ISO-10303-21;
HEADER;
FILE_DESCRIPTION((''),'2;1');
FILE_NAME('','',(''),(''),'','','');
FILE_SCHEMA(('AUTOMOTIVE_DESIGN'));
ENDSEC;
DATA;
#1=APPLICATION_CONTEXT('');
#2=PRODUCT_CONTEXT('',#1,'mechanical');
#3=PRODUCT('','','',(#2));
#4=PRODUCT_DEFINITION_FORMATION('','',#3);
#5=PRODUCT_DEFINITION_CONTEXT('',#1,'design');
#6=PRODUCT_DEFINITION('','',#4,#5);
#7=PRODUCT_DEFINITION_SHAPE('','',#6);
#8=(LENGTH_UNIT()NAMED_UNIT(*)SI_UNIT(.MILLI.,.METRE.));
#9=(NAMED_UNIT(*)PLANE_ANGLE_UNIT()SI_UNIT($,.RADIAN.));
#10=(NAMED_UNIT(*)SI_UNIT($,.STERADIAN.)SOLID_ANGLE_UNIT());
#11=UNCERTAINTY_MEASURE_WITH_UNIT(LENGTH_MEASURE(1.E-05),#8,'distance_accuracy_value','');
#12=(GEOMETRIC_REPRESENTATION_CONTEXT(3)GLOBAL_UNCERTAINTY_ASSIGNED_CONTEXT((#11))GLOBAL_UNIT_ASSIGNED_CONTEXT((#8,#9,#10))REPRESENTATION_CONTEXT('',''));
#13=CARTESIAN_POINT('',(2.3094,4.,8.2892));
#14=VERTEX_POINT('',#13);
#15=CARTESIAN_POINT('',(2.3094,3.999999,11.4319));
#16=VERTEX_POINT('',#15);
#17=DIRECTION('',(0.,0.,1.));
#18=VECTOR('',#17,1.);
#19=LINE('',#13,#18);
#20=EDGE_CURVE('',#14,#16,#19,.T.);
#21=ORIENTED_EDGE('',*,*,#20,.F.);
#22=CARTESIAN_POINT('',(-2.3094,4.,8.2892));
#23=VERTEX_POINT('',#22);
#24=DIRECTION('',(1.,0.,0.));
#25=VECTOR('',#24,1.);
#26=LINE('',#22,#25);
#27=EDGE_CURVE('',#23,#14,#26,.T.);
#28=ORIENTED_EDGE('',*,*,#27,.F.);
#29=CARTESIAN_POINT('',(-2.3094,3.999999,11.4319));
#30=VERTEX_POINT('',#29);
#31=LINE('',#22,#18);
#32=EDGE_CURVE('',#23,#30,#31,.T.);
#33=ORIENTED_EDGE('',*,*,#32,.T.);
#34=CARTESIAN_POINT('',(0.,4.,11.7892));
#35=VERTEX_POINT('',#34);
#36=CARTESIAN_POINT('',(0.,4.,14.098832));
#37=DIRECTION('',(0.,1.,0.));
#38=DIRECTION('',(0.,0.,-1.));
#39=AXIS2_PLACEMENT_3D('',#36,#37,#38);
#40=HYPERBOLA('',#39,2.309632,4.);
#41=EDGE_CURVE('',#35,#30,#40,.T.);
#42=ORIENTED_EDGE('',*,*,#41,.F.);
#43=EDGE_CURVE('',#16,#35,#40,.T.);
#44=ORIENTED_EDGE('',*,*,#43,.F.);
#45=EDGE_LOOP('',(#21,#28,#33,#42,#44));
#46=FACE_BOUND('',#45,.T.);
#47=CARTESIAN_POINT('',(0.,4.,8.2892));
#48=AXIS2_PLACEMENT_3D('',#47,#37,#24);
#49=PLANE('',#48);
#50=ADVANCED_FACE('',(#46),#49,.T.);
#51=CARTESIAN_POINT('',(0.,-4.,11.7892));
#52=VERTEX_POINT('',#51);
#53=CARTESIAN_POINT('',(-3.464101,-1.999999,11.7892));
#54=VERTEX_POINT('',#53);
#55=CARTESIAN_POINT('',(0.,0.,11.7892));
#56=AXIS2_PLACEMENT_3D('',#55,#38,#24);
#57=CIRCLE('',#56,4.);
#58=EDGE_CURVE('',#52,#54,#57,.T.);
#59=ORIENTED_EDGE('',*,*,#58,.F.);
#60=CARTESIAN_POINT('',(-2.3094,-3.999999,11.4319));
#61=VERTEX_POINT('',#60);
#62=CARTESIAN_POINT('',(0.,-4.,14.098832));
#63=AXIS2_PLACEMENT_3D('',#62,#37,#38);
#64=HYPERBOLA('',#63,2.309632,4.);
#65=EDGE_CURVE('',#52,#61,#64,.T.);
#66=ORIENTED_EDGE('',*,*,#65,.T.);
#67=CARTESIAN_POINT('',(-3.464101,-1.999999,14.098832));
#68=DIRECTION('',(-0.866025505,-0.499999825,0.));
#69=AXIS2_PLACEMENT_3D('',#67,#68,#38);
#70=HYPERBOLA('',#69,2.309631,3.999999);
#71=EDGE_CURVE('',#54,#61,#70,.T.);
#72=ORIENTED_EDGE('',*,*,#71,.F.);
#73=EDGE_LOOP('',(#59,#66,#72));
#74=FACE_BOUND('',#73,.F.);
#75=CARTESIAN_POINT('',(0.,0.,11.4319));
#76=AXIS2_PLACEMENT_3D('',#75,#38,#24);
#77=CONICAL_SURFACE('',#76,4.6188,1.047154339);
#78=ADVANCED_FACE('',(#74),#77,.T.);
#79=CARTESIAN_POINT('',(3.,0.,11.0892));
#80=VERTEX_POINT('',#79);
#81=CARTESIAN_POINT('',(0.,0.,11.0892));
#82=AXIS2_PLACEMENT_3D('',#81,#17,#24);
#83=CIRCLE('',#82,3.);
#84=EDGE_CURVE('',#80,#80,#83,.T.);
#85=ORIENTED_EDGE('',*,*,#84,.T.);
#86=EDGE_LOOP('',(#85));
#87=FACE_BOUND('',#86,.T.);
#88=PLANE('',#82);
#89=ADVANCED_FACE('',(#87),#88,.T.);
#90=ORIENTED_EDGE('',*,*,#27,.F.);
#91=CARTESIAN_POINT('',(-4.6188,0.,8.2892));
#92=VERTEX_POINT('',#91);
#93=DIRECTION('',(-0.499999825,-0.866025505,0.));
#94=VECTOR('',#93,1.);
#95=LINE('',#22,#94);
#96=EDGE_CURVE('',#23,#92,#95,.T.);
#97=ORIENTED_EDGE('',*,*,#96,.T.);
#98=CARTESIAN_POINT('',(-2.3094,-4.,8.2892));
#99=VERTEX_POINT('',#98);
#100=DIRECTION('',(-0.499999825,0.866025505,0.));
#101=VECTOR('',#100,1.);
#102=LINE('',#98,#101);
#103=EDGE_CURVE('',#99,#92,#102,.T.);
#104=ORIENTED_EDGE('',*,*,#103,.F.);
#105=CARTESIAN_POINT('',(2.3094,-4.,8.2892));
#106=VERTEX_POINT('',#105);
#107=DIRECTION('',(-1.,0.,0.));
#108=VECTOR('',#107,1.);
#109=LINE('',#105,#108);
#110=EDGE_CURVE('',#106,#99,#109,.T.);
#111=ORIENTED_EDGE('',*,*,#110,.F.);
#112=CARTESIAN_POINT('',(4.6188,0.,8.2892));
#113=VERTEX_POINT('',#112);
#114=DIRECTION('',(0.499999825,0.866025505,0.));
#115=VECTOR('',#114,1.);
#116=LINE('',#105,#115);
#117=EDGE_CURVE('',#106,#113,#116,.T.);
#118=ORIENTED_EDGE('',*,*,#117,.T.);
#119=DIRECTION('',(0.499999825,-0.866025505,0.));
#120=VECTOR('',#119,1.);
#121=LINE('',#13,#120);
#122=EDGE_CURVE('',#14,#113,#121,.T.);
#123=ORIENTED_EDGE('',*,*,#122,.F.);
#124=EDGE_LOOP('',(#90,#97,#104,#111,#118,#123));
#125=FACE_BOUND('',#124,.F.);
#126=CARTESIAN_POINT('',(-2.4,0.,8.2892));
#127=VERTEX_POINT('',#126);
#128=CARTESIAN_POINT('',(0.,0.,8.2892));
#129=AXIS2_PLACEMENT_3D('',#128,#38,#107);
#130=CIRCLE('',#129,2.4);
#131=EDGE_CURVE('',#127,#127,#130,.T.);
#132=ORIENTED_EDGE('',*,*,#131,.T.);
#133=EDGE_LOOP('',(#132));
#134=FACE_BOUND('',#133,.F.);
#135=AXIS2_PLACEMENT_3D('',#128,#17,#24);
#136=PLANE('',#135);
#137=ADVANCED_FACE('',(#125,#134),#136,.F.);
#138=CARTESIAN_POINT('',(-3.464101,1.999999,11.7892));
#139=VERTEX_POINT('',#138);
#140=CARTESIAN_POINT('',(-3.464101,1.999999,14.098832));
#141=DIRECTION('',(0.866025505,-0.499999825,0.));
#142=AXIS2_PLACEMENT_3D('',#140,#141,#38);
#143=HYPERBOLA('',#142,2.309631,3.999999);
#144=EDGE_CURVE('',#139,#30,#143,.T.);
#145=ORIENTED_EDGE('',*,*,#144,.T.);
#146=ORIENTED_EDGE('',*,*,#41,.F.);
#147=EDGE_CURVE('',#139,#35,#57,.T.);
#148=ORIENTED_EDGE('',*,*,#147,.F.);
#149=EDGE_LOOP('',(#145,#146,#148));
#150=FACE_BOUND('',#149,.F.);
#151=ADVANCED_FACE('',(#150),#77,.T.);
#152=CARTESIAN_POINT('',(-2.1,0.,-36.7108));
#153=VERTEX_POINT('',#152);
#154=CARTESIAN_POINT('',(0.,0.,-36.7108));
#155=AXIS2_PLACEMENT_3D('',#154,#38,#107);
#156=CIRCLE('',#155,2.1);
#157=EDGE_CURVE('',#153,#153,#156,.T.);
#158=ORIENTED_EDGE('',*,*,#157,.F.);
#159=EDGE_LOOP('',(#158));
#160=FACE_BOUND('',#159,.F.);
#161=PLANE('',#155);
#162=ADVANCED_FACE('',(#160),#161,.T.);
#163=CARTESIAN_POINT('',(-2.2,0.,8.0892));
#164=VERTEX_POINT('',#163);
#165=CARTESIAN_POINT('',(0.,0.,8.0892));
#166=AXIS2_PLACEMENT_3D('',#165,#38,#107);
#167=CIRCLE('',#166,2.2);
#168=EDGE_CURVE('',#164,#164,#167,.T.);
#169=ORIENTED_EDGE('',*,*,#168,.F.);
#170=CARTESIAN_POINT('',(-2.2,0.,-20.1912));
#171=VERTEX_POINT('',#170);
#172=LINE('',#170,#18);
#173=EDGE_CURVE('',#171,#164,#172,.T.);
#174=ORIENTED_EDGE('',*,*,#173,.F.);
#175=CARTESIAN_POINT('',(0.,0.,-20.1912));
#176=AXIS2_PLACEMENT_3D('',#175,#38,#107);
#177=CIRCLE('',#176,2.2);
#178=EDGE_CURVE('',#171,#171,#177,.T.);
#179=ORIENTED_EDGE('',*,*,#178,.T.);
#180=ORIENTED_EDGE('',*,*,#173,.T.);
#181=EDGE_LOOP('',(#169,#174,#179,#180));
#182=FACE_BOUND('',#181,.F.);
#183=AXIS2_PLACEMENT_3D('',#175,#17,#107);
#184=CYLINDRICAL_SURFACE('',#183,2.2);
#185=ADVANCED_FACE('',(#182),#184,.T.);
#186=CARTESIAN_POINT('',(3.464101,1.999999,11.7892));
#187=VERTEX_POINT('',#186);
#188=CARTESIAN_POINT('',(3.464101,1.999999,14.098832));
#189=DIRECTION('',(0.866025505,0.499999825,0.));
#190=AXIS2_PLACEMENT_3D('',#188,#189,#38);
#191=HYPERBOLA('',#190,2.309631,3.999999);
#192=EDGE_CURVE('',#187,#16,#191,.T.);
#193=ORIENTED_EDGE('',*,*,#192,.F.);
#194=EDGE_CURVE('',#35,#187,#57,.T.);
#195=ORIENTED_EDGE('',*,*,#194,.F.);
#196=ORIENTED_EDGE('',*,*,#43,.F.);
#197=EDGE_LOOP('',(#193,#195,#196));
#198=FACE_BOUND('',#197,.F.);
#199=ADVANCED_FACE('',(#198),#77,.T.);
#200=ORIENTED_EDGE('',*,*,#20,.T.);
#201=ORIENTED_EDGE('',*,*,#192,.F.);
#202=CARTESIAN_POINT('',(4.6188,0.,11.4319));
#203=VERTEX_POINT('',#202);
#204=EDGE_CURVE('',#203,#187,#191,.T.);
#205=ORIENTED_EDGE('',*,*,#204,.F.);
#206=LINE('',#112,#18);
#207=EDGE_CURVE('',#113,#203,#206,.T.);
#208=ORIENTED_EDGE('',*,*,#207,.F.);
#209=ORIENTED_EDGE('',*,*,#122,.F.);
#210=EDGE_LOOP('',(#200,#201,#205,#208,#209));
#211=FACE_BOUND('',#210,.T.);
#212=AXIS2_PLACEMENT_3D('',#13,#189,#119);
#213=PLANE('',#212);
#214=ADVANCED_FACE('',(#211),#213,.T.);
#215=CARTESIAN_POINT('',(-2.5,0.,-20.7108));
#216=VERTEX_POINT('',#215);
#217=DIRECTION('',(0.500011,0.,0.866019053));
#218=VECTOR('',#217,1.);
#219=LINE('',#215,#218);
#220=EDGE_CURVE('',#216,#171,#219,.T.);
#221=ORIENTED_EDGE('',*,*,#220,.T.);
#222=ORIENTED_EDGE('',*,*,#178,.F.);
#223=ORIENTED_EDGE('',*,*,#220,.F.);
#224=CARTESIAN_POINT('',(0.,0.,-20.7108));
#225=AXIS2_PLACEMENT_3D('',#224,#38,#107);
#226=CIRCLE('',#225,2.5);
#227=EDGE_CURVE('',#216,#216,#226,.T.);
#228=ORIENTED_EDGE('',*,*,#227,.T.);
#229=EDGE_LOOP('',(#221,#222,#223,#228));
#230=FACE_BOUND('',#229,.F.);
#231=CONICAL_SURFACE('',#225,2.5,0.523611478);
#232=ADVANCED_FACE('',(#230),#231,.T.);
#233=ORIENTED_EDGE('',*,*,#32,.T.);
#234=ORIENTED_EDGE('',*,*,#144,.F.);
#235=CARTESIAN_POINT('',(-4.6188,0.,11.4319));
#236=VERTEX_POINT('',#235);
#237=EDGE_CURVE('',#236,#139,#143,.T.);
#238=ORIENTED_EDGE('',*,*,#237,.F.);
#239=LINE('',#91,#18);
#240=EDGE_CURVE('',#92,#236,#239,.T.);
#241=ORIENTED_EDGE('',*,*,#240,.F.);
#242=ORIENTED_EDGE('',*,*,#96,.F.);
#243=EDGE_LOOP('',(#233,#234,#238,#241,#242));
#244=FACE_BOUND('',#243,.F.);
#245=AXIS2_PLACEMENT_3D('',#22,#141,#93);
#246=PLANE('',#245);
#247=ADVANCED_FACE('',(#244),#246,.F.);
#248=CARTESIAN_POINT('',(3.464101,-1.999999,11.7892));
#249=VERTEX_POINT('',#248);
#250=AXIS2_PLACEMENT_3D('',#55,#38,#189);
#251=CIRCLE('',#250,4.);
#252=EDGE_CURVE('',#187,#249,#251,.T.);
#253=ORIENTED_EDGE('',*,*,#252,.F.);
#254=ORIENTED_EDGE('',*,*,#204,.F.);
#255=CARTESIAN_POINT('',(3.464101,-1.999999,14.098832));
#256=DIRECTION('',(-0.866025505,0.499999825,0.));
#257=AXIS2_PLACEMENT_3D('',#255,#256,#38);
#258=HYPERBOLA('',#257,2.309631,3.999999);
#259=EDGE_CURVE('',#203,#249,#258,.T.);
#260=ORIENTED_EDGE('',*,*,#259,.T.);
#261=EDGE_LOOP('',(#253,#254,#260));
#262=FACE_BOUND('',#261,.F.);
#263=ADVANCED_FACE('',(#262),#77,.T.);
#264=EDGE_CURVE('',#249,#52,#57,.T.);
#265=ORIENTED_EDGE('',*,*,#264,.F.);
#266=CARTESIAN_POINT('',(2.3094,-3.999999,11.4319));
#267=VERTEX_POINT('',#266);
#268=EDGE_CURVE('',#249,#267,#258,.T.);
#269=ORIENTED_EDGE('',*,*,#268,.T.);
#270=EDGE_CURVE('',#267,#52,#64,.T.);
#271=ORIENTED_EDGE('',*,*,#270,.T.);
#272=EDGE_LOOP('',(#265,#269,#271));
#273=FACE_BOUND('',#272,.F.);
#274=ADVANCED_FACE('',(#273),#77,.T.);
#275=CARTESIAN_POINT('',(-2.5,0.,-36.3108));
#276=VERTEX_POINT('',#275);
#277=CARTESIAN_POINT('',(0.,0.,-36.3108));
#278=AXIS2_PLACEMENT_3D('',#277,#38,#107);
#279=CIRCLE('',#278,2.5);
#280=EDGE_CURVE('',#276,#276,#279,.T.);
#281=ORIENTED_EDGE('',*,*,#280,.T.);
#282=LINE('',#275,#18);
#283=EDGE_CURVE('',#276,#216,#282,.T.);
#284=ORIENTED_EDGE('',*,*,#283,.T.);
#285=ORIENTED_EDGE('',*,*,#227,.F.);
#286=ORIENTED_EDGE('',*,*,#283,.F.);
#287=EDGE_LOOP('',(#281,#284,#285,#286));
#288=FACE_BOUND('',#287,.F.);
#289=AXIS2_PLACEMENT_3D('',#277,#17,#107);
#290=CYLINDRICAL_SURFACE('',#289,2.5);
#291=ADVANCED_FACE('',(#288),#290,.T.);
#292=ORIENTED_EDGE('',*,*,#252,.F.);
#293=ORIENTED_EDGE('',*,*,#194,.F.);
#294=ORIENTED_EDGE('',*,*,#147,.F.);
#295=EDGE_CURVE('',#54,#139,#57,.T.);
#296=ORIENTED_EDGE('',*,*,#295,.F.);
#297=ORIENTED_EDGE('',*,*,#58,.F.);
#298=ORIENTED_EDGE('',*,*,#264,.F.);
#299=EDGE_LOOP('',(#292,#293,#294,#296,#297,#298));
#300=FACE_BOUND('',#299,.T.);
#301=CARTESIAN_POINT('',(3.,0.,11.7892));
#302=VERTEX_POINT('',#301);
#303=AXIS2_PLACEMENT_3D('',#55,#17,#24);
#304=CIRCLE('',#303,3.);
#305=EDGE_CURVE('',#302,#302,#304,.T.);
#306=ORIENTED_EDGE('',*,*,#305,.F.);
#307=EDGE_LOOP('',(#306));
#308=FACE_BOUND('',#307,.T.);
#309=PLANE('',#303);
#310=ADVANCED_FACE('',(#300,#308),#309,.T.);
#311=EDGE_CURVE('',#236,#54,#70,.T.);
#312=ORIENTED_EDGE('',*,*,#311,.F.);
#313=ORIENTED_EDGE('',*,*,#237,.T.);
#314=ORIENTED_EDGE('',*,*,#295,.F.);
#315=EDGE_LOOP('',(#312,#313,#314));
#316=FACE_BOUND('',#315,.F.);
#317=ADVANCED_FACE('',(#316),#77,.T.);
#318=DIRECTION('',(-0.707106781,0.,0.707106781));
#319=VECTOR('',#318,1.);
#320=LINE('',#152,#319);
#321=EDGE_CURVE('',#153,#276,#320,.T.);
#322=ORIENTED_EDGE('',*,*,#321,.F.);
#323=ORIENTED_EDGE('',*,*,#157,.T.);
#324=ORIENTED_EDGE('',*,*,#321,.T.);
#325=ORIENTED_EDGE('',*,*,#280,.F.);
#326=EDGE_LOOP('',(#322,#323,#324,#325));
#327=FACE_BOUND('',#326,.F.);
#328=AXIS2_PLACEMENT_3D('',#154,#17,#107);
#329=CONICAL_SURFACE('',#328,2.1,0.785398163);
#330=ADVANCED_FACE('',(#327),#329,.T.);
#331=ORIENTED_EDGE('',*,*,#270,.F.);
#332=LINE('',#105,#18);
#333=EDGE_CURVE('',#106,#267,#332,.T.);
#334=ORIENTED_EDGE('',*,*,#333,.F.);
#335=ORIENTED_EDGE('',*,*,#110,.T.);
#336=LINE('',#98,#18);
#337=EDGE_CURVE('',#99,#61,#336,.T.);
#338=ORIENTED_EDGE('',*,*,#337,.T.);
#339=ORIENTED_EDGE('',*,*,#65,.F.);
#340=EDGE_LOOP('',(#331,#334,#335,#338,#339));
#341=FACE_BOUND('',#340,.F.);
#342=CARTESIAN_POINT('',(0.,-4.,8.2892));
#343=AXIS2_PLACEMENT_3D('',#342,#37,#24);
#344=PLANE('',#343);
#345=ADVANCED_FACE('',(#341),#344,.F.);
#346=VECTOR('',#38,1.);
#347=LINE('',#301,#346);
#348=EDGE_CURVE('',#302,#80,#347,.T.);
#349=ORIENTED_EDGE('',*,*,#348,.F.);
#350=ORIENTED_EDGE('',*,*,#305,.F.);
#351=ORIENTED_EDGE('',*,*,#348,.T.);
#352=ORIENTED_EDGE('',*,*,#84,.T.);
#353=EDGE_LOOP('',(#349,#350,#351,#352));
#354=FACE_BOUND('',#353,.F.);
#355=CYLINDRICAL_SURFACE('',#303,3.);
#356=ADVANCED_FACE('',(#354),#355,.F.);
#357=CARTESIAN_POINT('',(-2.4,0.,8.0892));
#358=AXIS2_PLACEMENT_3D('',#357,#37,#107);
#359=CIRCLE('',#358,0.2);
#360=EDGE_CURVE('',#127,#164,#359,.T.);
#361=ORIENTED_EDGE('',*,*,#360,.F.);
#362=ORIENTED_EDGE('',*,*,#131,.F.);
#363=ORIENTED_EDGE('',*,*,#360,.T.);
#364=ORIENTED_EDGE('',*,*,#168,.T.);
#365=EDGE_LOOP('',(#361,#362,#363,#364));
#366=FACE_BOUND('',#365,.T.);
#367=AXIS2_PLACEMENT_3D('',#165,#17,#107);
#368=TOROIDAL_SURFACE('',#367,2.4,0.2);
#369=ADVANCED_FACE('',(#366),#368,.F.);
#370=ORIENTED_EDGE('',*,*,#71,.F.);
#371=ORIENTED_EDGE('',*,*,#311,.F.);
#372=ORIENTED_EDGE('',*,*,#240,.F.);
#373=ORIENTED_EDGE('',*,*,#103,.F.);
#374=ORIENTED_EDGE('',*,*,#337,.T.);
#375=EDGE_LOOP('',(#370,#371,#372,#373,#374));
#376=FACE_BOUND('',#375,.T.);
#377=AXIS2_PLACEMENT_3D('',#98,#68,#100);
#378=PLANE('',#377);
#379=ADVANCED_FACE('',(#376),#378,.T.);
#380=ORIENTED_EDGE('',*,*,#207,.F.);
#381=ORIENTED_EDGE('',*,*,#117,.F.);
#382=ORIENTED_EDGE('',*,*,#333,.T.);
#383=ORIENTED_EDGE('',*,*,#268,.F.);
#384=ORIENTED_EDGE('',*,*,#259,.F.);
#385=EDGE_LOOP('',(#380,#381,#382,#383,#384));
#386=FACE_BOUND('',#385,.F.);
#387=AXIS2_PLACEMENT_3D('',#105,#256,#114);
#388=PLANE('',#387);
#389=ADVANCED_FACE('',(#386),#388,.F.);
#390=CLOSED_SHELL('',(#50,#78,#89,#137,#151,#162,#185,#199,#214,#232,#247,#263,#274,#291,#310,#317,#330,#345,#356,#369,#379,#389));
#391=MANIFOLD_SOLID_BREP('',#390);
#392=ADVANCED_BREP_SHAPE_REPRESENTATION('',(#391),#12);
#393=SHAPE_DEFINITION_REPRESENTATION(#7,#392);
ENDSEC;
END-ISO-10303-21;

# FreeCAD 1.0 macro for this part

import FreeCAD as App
import Part
import Sketcher
Q = App.Units.Quantity


def edges_at(feature, points):
    """Names of the edges that pass closest to the given points."""
    edges = feature.Shape.Edges
    near = lambda p: min(range(len(edges)), key=lambda i: edges[i].distToShape(Part.Vertex(*p))[0])
    return sorted({f"Edge{near(p) + 1}" for p in points})


def add_polygon(sketch, points):
    """Adds a closed chain of lines whose ends are joined by coincident constraints."""
    first, n = sketch.GeometryCount, len(points)
    for a, b in zip(points, points[1:] + points[:1]):
        sketch.addGeometry(Part.LineSegment(App.Vector(*a, 0), App.Vector(*b, 0)), False)
    for i in range(n):
        sketch.addConstraint(Sketcher.Constraint("Coincident", first + i, 2, first + (i + 1) % n, 1))

doc = App.newDocument("Part")
body = doc.addObject("PartDesign::Body", "Body")

# Sketch on XZ plane
sketch1 = body.newObject("Sketcher::SketchObject", "Sketch")
sketch1.AttachmentSupport = (doc.getObject("XZ_Plane"), [""])
sketch1.MapMode = "FlatFace"
add_polygon(sketch1, [(-2.2, 8.3), (0, 8.3), (0, -36.7), (-2.1, -36.7), (-2.5, -36.3), (-2.5, -20.7), (-2.2, -20.2)])  # lines 0-6
sketch1.addConstraint([
    Sketcher.Constraint("Horizontal", 0),
    Sketcher.Constraint("Vertical", 1),
    Sketcher.Constraint("Horizontal", 2),
    Sketcher.Constraint("Vertical", 4),
    Sketcher.Constraint("Vertical", 6),
    Sketcher.Constraint("PointOnObject", 0, 2, -2),
    Sketcher.Constraint("DistanceY", 1, 2, 1, 1, Q("45 mm")),
    Sketcher.Constraint("DistanceY", 2, 2, 4, 2, Q("16 mm")),
    Sketcher.Constraint("Angle", 3, Q("135 deg")),
    Sketcher.Constraint("Angle", 5, Q("59.9993 deg")),
    Sketcher.Constraint("DistanceX", 0, 1, 0, 2, Q("2.2 mm")),
    Sketcher.Constraint("DistanceX", 2, 2, 2, 1, Q("2.1 mm")),
    Sketcher.Constraint("DistanceY", 4, 1, 4, 2, Q("15.6 mm")),
    Sketcher.Constraint("DistanceY", -1, 1, 0, 2, Q("8.2892 mm")),
])
revolution = body.newObject("PartDesign::Revolution", "Revolution")
revolution.Profile = sketch1
revolution.ReferenceAxis = (sketch1, ["V_Axis"])
revolution.Angle = 360

# Sketch on XY plane
sketch2 = body.newObject("Sketcher::SketchObject", "Sketch001")
sketch2.AttachmentSupport = (doc.getObject("XY_Plane"), [""])
sketch2.MapMode = "FlatFace"
sketch2.AttachmentOffset = App.Placement(App.Vector(0, 0, 8.2892), App.Rotation())
add_polygon(sketch2, [(2.3, 4), (-2.3, 4), (-4.6, 0), (-2.3, -4), (2.3, -4), (4.6, 0)])  # lines 0-5
sketch2.addConstraint([
    Sketcher.Constraint("Horizontal", 0),
    Sketcher.Constraint("Horizontal", 3),
    Sketcher.Constraint("Symmetric", 0, 2, 3, 2, -1, 1),
    Sketcher.Constraint("Symmetric", 1, 2, 4, 2, -1, 1),
    Sketcher.Constraint("PointOnObject", 1, 2, -1),
    Sketcher.Constraint("Parallel", 2, 5),
    Sketcher.Constraint("Vertical", 0, 2, 2, 2),
    Sketcher.Constraint("Angle", 2, Q("-60 deg")),
    Sketcher.Constraint("DistanceY", 2, 2, 0, 2, Q("8 mm")),
    Sketcher.Constraint("DistanceX", 0, 2, 0, 1, Q("4.6188 mm")),
])
pad1 = body.newObject("PartDesign::Pad", "Pad")
pad1.Profile = sketch2
pad1.Length = 3.5

# Sketch on XZ plane
sketch3 = body.newObject("Sketcher::SketchObject", "Sketch002")
sketch3.AttachmentSupport = (doc.getObject("XZ_Plane"), [""])
sketch3.MapMode = "FlatFace"
add_polygon(sketch3, [(4.62, 11.43), (4, 11.79), (4.62, 11.79)])  # lines 0-2
sketch3.addConstraint([
    Sketcher.Constraint("Horizontal", 1),
    Sketcher.Constraint("Vertical", 2),
    Sketcher.Constraint("DistanceX", -1, 1, 0, 2, Q("4 mm")),
    Sketcher.Constraint("DistanceX", 1, 1, 1, 2, Q("0.6188 mm")),
    Sketcher.Constraint("DistanceY", 2, 2, 2, 1, Q("0.3573 mm")),
    Sketcher.Constraint("DistanceY", -1, 1, 2, 2, Q("11.432 mm")),
])
groove = body.newObject("PartDesign::Groove", "Groove")
groove.Profile = sketch3
groove.ReferenceAxis = (sketch3, ["V_Axis"])
groove.Angle = 360

# Sketch on XY plane
sketch4 = body.newObject("Sketcher::SketchObject", "Sketch003")
sketch4.AttachmentSupport = (doc.getObject("XY_Plane"), [""])
sketch4.MapMode = "FlatFace"
sketch4.AttachmentOffset = App.Placement(App.Vector(0, 0, 11.7892), App.Rotation())
sketch4.addGeometry(Part.Circle(App.Vector(0, 0, 0), App.Vector(0, 0, 1), 3), False)
sketch4.addConstraint([
    Sketcher.Constraint("Coincident", 0, 3, -1, 1),
    Sketcher.Constraint("Diameter", 0, Q("6 mm")),
])
pocket1 = body.newObject("PartDesign::Pocket", "Pocket")
pocket1.Profile = sketch4
pocket1.Length = 0.7
doc.recompute()

fillet = body.newObject("PartDesign::Fillet", "Fillet")
fillet.Base = (pocket1, edges_at(pocket1, [(2.2, 0, 8.289)]))
fillet.Radius = 0.2

doc.recompute()
